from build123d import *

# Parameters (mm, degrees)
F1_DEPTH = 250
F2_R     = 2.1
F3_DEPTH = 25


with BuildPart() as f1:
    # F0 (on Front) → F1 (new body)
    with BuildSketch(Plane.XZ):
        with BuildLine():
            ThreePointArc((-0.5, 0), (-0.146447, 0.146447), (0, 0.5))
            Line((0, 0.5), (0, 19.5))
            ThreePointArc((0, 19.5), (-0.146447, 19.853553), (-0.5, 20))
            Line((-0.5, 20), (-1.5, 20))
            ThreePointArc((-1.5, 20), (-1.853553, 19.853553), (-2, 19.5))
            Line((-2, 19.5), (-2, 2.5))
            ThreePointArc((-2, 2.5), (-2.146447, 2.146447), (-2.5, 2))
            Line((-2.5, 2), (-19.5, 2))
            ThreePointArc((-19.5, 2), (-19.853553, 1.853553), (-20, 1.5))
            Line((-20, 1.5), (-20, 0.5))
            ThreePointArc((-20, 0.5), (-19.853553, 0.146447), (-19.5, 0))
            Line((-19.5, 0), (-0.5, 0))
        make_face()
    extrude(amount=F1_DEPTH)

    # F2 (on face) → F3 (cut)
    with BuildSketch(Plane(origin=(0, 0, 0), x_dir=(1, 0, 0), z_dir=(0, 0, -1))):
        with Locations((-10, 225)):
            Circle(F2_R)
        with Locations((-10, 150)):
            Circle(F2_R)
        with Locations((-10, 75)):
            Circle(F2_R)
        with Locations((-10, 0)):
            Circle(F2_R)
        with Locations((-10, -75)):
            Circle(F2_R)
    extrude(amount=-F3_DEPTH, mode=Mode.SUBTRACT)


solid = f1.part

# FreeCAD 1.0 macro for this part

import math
import FreeCAD as App
import Part
import Sketcher
from FreeCAD import Vector
Q = App.Units.Quantity

doc = App.newDocument("Part")
body = doc.addObject("PartDesign::Body", "Body")

# Sketch on XZ plane
sketch1 = body.newObject("Sketcher::SketchObject", "Sketch")
sketch1.AttachmentSupport = (doc.getObject("XZ_Plane"), [""])
sketch1.MapMode = "FlatFace"
sketch1.addGeometry([
    Part.ArcOfCircle(Part.Circle(Vector(-0.5, 0.5, 0), Vector(0, 0, 1), 0.5), math.radians(-90), math.radians(0)),  # 0
    Part.LineSegment(Vector(0, 0.5, 0), Vector(0, 19.5, 0)),  # 1
    Part.ArcOfCircle(Part.Circle(Vector(-0.5, 19.5, 0), Vector(0, 0, 1), 0.5), math.radians(0), math.radians(90)),  # 2
    Part.LineSegment(Vector(-0.5, 20, 0), Vector(-1.5, 20, 0)),  # 3
    Part.ArcOfCircle(Part.Circle(Vector(-1.5, 19.5, 0), Vector(0, 0, 1), 0.5), math.radians(90), math.radians(180)),  # 4
    Part.LineSegment(Vector(-2, 19.5, 0), Vector(-2, 2.5, 0)),  # 5
    Part.ArcOfCircle(Part.Circle(Vector(-2.5, 2.5, 0), Vector(0, 0, 1), 0.5), math.radians(-90), math.radians(0)),  # 6
    Part.LineSegment(Vector(-2.5, 2, 0), Vector(-19.5, 2, 0)),  # 7
    Part.ArcOfCircle(Part.Circle(Vector(-19.5, 1.5, 0), Vector(0, 0, 1), 0.5), math.radians(90), math.radians(180)),  # 8
    Part.LineSegment(Vector(-20, 1.5, 0), Vector(-20, 0.5, 0)),  # 9
    Part.ArcOfCircle(Part.Circle(Vector(-19.5, 0.5, 0), Vector(0, 0, 1), 0.5), math.radians(-180), math.radians(-90)),  # 10
    Part.LineSegment(Vector(-19.5, 0, 0), Vector(-0.5, 0, 0)),  # 11
], False)
sketch1.addConstraint([
    Sketcher.Constraint("Coincident", 0, 2, 1, 1),
    Sketcher.Constraint("Coincident", 1, 2, 2, 1),
    Sketcher.Constraint("Coincident", 2, 2, 3, 1),
    Sketcher.Constraint("Coincident", 3, 2, 4, 1),
    Sketcher.Constraint("Coincident", 4, 2, 5, 1),
    Sketcher.Constraint("Coincident", 5, 2, 6, 2),
    Sketcher.Constraint("Coincident", 6, 1, 7, 1),
    Sketcher.Constraint("Coincident", 7, 2, 8, 1),
    Sketcher.Constraint("Coincident", 8, 2, 9, 1),
    Sketcher.Constraint("Coincident", 9, 2, 10, 1),
    Sketcher.Constraint("Coincident", 10, 2, 11, 1),
    Sketcher.Constraint("Coincident", 11, 2, 0, 1),
    Sketcher.Constraint("Vertical", 1),
    Sketcher.Constraint("Horizontal", 3),
    Sketcher.Constraint("Vertical", 5),
    Sketcher.Constraint("Horizontal", 7),
    Sketcher.Constraint("Vertical", 9),
    Sketcher.Constraint("Horizontal", 11),
    Sketcher.Constraint("Equal", 0, 2),
    Sketcher.Constraint("Equal", 2, 4),
    Sketcher.Constraint("Equal", 4, 6),
    Sketcher.Constraint("Equal", 6, 8),
    Sketcher.Constraint("Equal", 8, 10),
    Sketcher.Constraint("PointOnObject", 0, 2, -2),
    Sketcher.Constraint("PointOnObject", 10, 2, -1),
    Sketcher.Constraint("Horizontal", 10, 3, 0, 2),
    Sketcher.Constraint("Horizontal", 4, 3, 1, 2),
    Sketcher.Constraint("Horizontal", 1, 2, 4, 2),
    Sketcher.Constraint("Horizontal", 6, 3, 5, 2),
    Sketcher.Constraint("Horizontal", 0, 2, 9, 2),
    Sketcher.Constraint("Vertical", 0, 3, 2, 2),
    Sketcher.Constraint("Vertical", 4, 3, 3, 2),
    Sketcher.Constraint("Vertical", 10, 3, 7, 2),
    Sketcher.Constraint("Vertical", 7, 2, 10, 2),
    Sketcher.Constraint("Vertical", 2, 2, 11, 2),
    Sketcher.Constraint("Equal", 11, 1),
    Sketcher.Constraint("Equal", 7, 5),
    Sketcher.Constraint("Equal", 3, 9),
    Sketcher.Constraint("Radius", 0, Q("0.500001 mm")),
    Sketcher.Constraint("DistanceX", 3, 2, 3, 1, Q("1 mm")),
    Sketcher.Constraint("DistanceX", 7, 2, 7, 1, Q("17 mm")),
    Sketcher.Constraint("DistanceX", 11, 1, 11, 2, Q("19 mm")),
])
pad1 = body.newObject("PartDesign::Pad", "Pad")
pad1.Profile = sketch1
pad1.Length = 250

# Sketch on XY plane
sketch2 = body.newObject("Sketcher::SketchObject", "Sketch001")
sketch2.AttachmentSupport = (doc.getObject("XY_Plane"), [""])
sketch2.MapMode = "FlatFace"
sketch2.addGeometry([
    Part.Circle(Vector(-10, -225, 0), Vector(0, 0, 1), 2.1),  # 0
    Part.Circle(Vector(-10, -150, 0), Vector(0, 0, 1), 2.1),  # 1
    Part.Circle(Vector(-10, -75, 0), Vector(0, 0, 1), 2.1),  # 2
    Part.Circle(Vector(-10, 0, 0), Vector(0, 0, 1), 2.1),  # 3
    Part.Circle(Vector(-10, 75, 0), Vector(0, 0, 1), 2.1),  # 4
], False)
sketch2.addConstraint([
    Sketcher.Constraint("Equal", 0, 1),
    Sketcher.Constraint("Equal", 1, 2),
    Sketcher.Constraint("Equal", 2, 3),
    Sketcher.Constraint("Equal", 3, 4),
    Sketcher.Constraint("Symmetric", 2, 3, 4, 3, -1),
    Sketcher.Constraint("PointOnObject", 3, 3, -1),
    Sketcher.Constraint("Vertical", 0, 3, 1, 3),
    Sketcher.Constraint("Vertical", 1, 3, 2, 3),
    Sketcher.Constraint("Vertical", 2, 3, 3, 3),
    Sketcher.Constraint("Diameter", 0, Q("4.2 mm")),
    Sketcher.Constraint("DistanceX", 0, 3, -1, 1, Q("10 mm")),
    Sketcher.Constraint("DistanceY", 0, 3, -1, 1, Q("225 mm")),
    Sketcher.Constraint("DistanceY", 1, 3, -1, 1, Q("150 mm")),
    Sketcher.Constraint("DistanceY", 2, 3, -1, 1, Q("75 mm")),
])
pocket1 = body.newObject("PartDesign::Pocket", "Pocket")
pocket1.Profile = sketch2
pocket1.Length = 25
pocket1.Reversed = True

doc.recompute()
